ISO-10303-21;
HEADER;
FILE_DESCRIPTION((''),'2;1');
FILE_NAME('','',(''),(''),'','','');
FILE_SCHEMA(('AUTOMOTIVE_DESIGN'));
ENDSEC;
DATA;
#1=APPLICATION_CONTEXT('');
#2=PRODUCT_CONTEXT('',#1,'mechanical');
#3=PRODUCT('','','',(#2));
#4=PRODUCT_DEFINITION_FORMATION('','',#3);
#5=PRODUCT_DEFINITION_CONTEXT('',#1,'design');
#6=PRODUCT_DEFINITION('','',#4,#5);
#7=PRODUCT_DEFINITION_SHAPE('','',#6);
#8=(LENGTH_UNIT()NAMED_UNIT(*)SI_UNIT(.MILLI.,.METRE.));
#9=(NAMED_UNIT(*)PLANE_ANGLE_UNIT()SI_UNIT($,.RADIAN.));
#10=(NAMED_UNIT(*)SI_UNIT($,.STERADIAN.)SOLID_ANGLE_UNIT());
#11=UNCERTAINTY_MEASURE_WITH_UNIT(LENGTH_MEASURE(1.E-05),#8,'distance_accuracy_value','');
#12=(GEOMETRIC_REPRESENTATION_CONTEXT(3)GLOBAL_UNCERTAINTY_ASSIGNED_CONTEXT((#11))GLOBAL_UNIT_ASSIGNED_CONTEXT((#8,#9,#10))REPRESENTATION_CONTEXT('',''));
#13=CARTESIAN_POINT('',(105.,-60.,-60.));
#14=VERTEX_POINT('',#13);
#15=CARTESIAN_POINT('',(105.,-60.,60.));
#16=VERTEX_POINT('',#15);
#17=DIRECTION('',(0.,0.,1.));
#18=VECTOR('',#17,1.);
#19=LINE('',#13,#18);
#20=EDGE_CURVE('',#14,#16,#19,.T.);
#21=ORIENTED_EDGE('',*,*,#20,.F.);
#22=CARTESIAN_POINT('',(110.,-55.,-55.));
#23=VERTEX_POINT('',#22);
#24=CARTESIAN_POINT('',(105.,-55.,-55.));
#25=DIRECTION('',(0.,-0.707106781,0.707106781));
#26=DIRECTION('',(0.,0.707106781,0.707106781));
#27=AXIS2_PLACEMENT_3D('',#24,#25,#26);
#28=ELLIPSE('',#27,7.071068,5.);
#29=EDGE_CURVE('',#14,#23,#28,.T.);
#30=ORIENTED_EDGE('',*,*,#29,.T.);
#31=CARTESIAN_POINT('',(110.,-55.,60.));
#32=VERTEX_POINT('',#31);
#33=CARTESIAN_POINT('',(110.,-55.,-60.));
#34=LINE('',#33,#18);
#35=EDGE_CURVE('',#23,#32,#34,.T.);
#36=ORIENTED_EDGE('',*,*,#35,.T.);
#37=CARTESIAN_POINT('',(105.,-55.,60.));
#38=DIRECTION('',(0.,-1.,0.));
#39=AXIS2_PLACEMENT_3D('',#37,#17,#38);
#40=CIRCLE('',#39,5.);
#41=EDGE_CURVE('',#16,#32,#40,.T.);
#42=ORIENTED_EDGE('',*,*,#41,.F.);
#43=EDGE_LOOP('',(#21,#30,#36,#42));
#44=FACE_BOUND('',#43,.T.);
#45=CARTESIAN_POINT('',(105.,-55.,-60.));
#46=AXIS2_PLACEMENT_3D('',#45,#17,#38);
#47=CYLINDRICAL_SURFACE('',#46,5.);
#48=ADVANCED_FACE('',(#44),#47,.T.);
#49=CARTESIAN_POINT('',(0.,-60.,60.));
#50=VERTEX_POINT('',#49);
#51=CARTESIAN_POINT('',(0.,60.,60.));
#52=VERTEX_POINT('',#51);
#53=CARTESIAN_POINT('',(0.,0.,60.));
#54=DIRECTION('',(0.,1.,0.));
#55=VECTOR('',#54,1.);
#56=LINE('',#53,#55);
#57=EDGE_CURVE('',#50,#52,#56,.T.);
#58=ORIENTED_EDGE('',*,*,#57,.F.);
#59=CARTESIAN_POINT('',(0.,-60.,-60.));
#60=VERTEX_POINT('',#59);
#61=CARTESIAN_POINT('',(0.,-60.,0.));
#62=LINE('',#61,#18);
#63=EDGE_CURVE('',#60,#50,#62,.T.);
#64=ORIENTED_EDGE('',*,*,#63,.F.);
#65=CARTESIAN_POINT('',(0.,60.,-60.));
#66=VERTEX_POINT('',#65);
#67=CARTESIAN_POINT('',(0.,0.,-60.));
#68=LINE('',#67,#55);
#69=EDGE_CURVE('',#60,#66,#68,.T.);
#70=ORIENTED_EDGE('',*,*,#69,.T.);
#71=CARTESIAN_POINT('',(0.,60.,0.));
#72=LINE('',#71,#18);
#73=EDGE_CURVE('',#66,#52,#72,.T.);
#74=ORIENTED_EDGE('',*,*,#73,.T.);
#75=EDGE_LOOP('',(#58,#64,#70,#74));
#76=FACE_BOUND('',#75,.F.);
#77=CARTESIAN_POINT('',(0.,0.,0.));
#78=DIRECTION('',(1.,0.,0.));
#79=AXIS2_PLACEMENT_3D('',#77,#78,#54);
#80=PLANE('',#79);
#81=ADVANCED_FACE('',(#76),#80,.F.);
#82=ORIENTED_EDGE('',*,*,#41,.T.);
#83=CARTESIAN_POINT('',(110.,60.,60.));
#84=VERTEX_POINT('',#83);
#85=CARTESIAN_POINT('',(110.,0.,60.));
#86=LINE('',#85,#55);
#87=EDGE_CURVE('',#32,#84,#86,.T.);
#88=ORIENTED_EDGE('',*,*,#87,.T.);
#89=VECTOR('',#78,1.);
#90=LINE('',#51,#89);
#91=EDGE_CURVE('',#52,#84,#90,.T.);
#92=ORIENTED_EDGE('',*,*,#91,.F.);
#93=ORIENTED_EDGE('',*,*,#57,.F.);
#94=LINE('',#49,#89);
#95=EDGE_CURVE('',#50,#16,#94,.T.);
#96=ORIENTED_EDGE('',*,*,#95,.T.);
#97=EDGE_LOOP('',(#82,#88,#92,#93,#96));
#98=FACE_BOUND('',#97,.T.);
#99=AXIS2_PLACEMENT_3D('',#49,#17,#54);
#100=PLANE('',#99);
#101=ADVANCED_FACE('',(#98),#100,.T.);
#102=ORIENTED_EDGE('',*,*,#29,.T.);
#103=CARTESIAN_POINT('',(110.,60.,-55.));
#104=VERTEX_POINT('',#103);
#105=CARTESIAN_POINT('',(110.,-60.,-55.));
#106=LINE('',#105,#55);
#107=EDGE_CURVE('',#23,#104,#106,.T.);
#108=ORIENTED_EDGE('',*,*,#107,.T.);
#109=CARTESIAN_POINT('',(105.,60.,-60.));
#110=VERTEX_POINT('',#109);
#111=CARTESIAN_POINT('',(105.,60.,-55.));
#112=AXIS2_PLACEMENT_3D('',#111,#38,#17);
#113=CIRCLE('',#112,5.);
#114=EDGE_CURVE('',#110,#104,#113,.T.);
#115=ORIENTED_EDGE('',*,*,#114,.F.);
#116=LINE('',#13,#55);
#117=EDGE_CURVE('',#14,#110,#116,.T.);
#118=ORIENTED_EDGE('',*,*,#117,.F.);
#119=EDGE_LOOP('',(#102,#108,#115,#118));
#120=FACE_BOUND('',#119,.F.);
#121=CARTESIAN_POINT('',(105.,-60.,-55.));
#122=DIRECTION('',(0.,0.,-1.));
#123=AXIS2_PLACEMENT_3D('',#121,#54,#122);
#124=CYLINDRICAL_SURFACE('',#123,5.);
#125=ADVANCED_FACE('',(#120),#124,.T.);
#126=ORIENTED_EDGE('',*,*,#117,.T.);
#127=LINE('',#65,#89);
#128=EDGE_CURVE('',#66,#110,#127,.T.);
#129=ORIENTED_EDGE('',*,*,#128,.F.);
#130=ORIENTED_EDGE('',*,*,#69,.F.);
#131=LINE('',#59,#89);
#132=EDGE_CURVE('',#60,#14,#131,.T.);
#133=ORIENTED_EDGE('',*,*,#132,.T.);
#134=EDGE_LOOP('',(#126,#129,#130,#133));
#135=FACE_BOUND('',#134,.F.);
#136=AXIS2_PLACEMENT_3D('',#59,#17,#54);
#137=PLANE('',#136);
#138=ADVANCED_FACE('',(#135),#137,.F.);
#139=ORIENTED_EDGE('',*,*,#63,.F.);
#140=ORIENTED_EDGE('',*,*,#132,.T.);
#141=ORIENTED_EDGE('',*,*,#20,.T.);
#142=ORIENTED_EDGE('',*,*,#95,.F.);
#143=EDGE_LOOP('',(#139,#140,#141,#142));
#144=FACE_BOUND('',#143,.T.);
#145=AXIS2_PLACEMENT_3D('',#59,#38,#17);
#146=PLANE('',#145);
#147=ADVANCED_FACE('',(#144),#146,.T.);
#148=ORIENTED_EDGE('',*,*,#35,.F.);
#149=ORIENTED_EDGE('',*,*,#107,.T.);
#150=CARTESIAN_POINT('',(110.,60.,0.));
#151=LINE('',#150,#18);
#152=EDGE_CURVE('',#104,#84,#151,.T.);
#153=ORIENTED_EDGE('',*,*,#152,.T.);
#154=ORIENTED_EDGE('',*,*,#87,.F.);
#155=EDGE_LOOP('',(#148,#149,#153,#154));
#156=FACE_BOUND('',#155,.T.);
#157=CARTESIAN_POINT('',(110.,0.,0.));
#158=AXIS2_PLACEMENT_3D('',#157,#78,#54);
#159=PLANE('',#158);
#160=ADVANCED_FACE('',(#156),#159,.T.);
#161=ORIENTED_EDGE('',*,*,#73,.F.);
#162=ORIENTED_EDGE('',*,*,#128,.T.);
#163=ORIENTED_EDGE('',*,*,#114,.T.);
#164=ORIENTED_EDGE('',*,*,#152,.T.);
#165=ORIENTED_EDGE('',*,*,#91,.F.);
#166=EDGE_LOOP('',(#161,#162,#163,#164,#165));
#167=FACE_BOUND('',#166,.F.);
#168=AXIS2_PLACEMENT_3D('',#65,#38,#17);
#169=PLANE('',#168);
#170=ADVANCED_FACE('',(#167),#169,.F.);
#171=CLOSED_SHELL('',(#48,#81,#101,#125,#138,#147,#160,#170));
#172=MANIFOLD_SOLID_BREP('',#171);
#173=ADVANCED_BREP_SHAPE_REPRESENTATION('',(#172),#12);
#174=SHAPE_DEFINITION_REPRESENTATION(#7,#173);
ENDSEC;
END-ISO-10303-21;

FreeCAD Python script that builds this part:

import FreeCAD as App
import Part
import Sketcher


def edges_at(feature, points):
    """Names of the edges that pass closest to the given points."""
    edges = feature.Shape.Edges
    near = lambda p: min(range(len(edges)), key=lambda i: edges[i].distToShape(Part.Vertex(*p))[0])
    return sorted({f"Edge{near(p) + 1}" for p in points})

doc = App.newDocument("Part")
body = doc.addObject("PartDesign::Body", "Body")

sketch1 = body.newObject("Sketcher::SketchObject", "Sketch")
sketch1.AttachmentSupport = (doc.getObject("YZ_Plane"), [""])
sketch1.MapMode = "FlatFace"
sketch1.addGeometry(Part.LineSegment(App.Vector(-60, 60, 0), App.Vector(-60, -60, 0)), False)
sketch1.addGeometry(Part.LineSegment(App.Vector(-60, -60, 0), App.Vector(60, -60, 0)), False)
sketch1.addGeometry(Part.LineSegment(App.Vector(60, -60, 0), App.Vector(60, 60, 0)), False)
sketch1.addGeometry(Part.LineSegment(App.Vector(60, 60, 0), App.Vector(-60, 60, 0)), False)
sketch1.addConstraint(Sketcher.Constraint("Coincident", 0, 2, 1, 1))
sketch1.addConstraint(Sketcher.Constraint("Coincident", 1, 2, 2, 1))
sketch1.addConstraint(Sketcher.Constraint("Coincident", 2, 2, 3, 1))
sketch1.addConstraint(Sketcher.Constraint("Coincident", 3, 2, 0, 1))
sketch1.addConstraint(Sketcher.Constraint("Vertical", 0))
sketch1.addConstraint(Sketcher.Constraint("Horizontal", 1))
sketch1.addConstraint(Sketcher.Constraint("Vertical", 2))
sketch1.addConstraint(Sketcher.Constraint("Horizontal", 3))
sketch1.addConstraint(Sketcher.Constraint("Symmetric", 0, 2, 2, 2, -1, 1))
sketch1.addConstraint(Sketcher.Constraint("Equal", 3, 0))
sketch1.addConstraint(Sketcher.Constraint("DistanceX", 1, 1, 1, 2, 120.0))
pad1 = body.newObject("PartDesign::Pad", "Pad")
pad1.Profile = sketch1
pad1.Length = 110
doc.recompute()

fillet = body.newObject("PartDesign::Fillet", "Fillet")
fillet.Base = (pad1, edges_at(pad1, [(110, -60, 0), (110, 0, -60)]))
fillet.Radius = 5

doc.recompute()
